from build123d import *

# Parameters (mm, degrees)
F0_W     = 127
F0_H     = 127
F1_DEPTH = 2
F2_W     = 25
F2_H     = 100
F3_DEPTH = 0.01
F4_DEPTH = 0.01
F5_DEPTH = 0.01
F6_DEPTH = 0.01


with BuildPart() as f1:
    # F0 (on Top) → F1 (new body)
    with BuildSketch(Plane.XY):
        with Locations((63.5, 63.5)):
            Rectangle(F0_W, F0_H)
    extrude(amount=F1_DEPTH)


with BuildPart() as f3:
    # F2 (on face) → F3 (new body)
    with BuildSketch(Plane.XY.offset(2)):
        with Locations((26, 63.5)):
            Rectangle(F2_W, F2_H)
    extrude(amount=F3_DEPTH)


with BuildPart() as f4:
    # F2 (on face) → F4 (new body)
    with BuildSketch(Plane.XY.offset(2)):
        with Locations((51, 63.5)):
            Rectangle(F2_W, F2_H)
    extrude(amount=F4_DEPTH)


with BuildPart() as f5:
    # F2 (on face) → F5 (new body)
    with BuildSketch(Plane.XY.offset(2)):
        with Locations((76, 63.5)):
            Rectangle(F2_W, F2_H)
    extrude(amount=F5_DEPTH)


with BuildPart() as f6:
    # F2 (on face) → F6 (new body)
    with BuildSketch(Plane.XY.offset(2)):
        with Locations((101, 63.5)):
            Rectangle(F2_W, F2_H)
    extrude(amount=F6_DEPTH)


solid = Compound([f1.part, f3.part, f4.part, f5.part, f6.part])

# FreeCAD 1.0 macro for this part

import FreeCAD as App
import Part
import Sketcher
from FreeCAD import Vector
Q = App.Units.Quantity

doc = App.newDocument("Part")
body = doc.addObject("PartDesign::Body", "Body")

# Sketch on XY plane
sketch1 = body.newObject("Sketcher::SketchObject", "Sketch")
sketch1.AttachmentSupport = (doc.getObject("XY_Plane"), [""])
sketch1.MapMode = "FlatFace"
sketch1.addGeometry(Part.LineSegment(Vector(0, 127, 0), Vector(0, 0, 0)), False)
sketch1.addGeometry(Part.LineSegment(Vector(0, 0, 0), Vector(127, 0, 0)), False)
sketch1.addGeometry(Part.LineSegment(Vector(127, 0, 0), Vector(127, 127, 0)), False)
sketch1.addGeometry(Part.LineSegment(Vector(127, 127, 0), Vector(0, 127, 0)), False)
sketch1.addConstraint(Sketcher.Constraint("Coincident", 0, 2, 1, 1))
sketch1.addConstraint(Sketcher.Constraint("Coincident", 1, 2, 2, 1))
sketch1.addConstraint(Sketcher.Constraint("Coincident", 2, 2, 3, 1))
sketch1.addConstraint(Sketcher.Constraint("Coincident", 3, 2, 0, 1))
sketch1.addConstraint(Sketcher.Constraint("Vertical", 0))
sketch1.addConstraint(Sketcher.Constraint("Horizontal", 1))
sketch1.addConstraint(Sketcher.Constraint("Vertical", 2))
sketch1.addConstraint(Sketcher.Constraint("Horizontal", 3))
sketch1.addConstraint(Sketcher.Constraint("Coincident", 0, 2, -1, 1))
sketch1.addConstraint(Sketcher.Constraint("Equal", 3, 0))
sketch1.addConstraint(Sketcher.Constraint("DistanceX", 1, 1, 1, 2, Q("127 mm")))
pad1 = body.newObject("PartDesign::Pad", "Pad")
pad1.Profile = sketch1
pad1.Length = 2
body2 = doc.addObject("PartDesign::Body", "Body001")

# Sketch on XY plane
sketch2 = body2.newObject("Sketcher::SketchObject", "Sketch001")
sketch2.AttachmentSupport = (doc.getObject("XY_Plane001"), [""])
sketch2.MapMode = "FlatFace"
sketch2.AttachmentOffset = App.Placement(Vector(0, 0, 2), App.Rotation())
sketch2.addGeometry(Part.LineSegment(Vector(13.5, 113.5, 0), Vector(13.5, 13.5, 0)), False)
sketch2.addGeometry(Part.LineSegment(Vector(13.5, 13.5, 0), Vector(38.5, 13.5, 0)), False)
sketch2.addGeometry(Part.LineSegment(Vector(38.5, 13.5, 0), Vector(38.5, 113.5, 0)), False)
sketch2.addGeometry(Part.LineSegment(Vector(38.5, 113.5, 0), Vector(13.5, 113.5, 0)), False)
sketch2.addConstraint(Sketcher.Constraint("Coincident", 0, 2, 1, 1))
sketch2.addConstraint(Sketcher.Constraint("Coincident", 1, 2, 2, 1))
sketch2.addConstraint(Sketcher.Constraint("Coincident", 2, 2, 3, 1))
sketch2.addConstraint(Sketcher.Constraint("Coincident", 3, 2, 0, 1))
sketch2.addConstraint(Sketcher.Constraint("Vertical", 0))
sketch2.addConstraint(Sketcher.Constraint("Horizontal", 1))
sketch2.addConstraint(Sketcher.Constraint("Vertical", 2))
sketch2.addConstraint(Sketcher.Constraint("Horizontal", 3))
sketch2.addConstraint(Sketcher.Constraint("DistanceX", 1, 1, 1, 2, Q("25 mm")))
sketch2.addConstraint(Sketcher.Constraint("DistanceY", 0, 2, 0, 1, Q("100 mm")))
sketch2.addConstraint(Sketcher.Constraint("DistanceX", -1, 1, 0, 2, Q("13.5 mm")))
sketch2.addConstraint(Sketcher.Constraint("DistanceY", -1, 1, 0, 2, Q("13.5 mm")))
pad2 = body2.newObject("PartDesign::Pad", "Pad001")
pad2.Profile = sketch2
pad2.Length = 0.01
body3 = doc.addObject("PartDesign::Body", "Body002")

# Sketch on XY plane
sketch3 = body3.newObject("Sketcher::SketchObject", "Sketch002")
sketch3.AttachmentSupport = (doc.getObject("XY_Plane002"), [""])
sketch3.MapMode = "FlatFace"
sketch3.AttachmentOffset = App.Placement(Vector(0, 0, 2), App.Rotation())
sketch3.addGeometry(Part.LineSegment(Vector(38.5, 113.5, 0), Vector(38.5, 13.5, 0)), False)
sketch3.addGeometry(Part.LineSegment(Vector(38.5, 13.5, 0), Vector(63.5, 13.5, 0)), False)
sketch3.addGeometry(Part.LineSegment(Vector(63.5, 13.5, 0), Vector(63.5, 113.5, 0)), False)
sketch3.addGeometry(Part.LineSegment(Vector(63.5, 113.5, 0), Vector(38.5, 113.5, 0)), False)
sketch3.addConstraint(Sketcher.Constraint("Coincident", 0, 2, 1, 1))
sketch3.addConstraint(Sketcher.Constraint("Coincident", 1, 2, 2, 1))
sketch3.addConstraint(Sketcher.Constraint("Coincident", 2, 2, 3, 1))
sketch3.addConstraint(Sketcher.Constraint("Coincident", 3, 2, 0, 1))
sketch3.addConstraint(Sketcher.Constraint("Vertical", 0))
sketch3.addConstraint(Sketcher.Constraint("Horizontal", 1))
sketch3.addConstraint(Sketcher.Constraint("Vertical", 2))
sketch3.addConstraint(Sketcher.Constraint("Horizontal", 3))
sketch3.addConstraint(Sketcher.Constraint("DistanceX", 1, 1, 1, 2, Q("25 mm")))
sketch3.addConstraint(Sketcher.Constraint("DistanceY", 0, 2, 0, 1, Q("100 mm")))
sketch3.addConstraint(Sketcher.Constraint("DistanceX", -1, 1, 0, 2, Q("38.5 mm")))
sketch3.addConstraint(Sketcher.Constraint("DistanceY", -1, 1, 0, 2, Q("13.5 mm")))
pad3 = body3.newObject("PartDesign::Pad", "Pad002")
pad3.Profile = sketch3
pad3.Length = 0.01
body4 = doc.addObject("PartDesign::Body", "Body003")

# Sketch on XY plane
sketch4 = body4.newObject("Sketcher::SketchObject", "Sketch003")
sketch4.AttachmentSupport = (doc.getObject("XY_Plane003"), [""])
sketch4.MapMode = "FlatFace"
sketch4.AttachmentOffset = App.Placement(Vector(0, 0, 2), App.Rotation())
sketch4.addGeometry(Part.LineSegment(Vector(63.5, 113.5, 0), Vector(63.5, 13.5, 0)), False)
sketch4.addGeometry(Part.LineSegment(Vector(63.5, 13.5, 0), Vector(88.5, 13.5, 0)), False)
sketch4.addGeometry(Part.LineSegment(Vector(88.5, 13.5, 0), Vector(88.5, 113.5, 0)), False)
sketch4.addGeometry(Part.LineSegment(Vector(88.5, 113.5, 0), Vector(63.5, 113.5, 0)), False)
sketch4.addConstraint(Sketcher.Constraint("Coincident", 0, 2, 1, 1))
sketch4.addConstraint(Sketcher.Constraint("Coincident", 1, 2, 2, 1))
sketch4.addConstraint(Sketcher.Constraint("Coincident", 2, 2, 3, 1))
sketch4.addConstraint(Sketcher.Constraint("Coincident", 3, 2, 0, 1))
sketch4.addConstraint(Sketcher.Constraint("Vertical", 0))
sketch4.addConstraint(Sketcher.Constraint("Horizontal", 1))
sketch4.addConstraint(Sketcher.Constraint("Vertical", 2))
sketch4.addConstraint(Sketcher.Constraint("Horizontal", 3))
sketch4.addConstraint(Sketcher.Constraint("DistanceX", 1, 1, 1, 2, Q("25 mm")))
sketch4.addConstraint(Sketcher.Constraint("DistanceY", 0, 2, 0, 1, Q("100 mm")))
sketch4.addConstraint(Sketcher.Constraint("DistanceX", -1, 1, 0, 2, Q("63.5 mm")))
sketch4.addConstraint(Sketcher.Constraint("DistanceY", -1, 1, 0, 2, Q("13.5 mm")))
pad4 = body4.newObject("PartDesign::Pad", "Pad003")
pad4.Profile = sketch4
pad4.Length = 0.01
body5 = doc.addObject("PartDesign::Body", "Body004")

# Sketch on XY plane
sketch5 = body5.newObject("Sketcher::SketchObject", "Sketch004")
sketch5.AttachmentSupport = (doc.getObject("XY_Plane004"), [""])
sketch5.MapMode = "FlatFace"
sketch5.AttachmentOffset = App.Placement(Vector(0, 0, 2), App.Rotation())
sketch5.addGeometry(Part.LineSegment(Vector(88.5, 113.5, 0), Vector(88.5, 13.5, 0)), False)
sketch5.addGeometry(Part.LineSegment(Vector(88.5, 13.5, 0), Vector(113.5, 13.5, 0)), False)
sketch5.addGeometry(Part.LineSegment(Vector(113.5, 13.5, 0), Vector(113.5, 113.5, 0)), False)
sketch5.addGeometry(Part.LineSegment(Vector(113.5, 113.5, 0), Vector(88.5, 113.5, 0)), False)
sketch5.addConstraint(Sketcher.Constraint("Coincident", 0, 2, 1, 1))
sketch5.addConstraint(Sketcher.Constraint("Coincident", 1, 2, 2, 1))
sketch5.addConstraint(Sketcher.Constraint("Coincident", 2, 2, 3, 1))
sketch5.addConstraint(Sketcher.Constraint("Coincident", 3, 2, 0, 1))
sketch5.addConstraint(Sketcher.Constraint("Vertical", 0))
sketch5.addConstraint(Sketcher.Constraint("Horizontal", 1))
sketch5.addConstraint(Sketcher.Constraint("Vertical", 2))
sketch5.addConstraint(Sketcher.Constraint("Horizontal", 3))
sketch5.addConstraint(Sketcher.Constraint("DistanceX", 1, 1, 1, 2, Q("25 mm")))
sketch5.addConstraint(Sketcher.Constraint("DistanceY", 0, 2, 0, 1, Q("100 mm")))
sketch5.addConstraint(Sketcher.Constraint("DistanceX", -1, 1, 0, 2, Q("88.5 mm")))
sketch5.addConstraint(Sketcher.Constraint("DistanceY", -1, 1, 0, 2, Q("13.5 mm")))
pad5 = body5.newObject("PartDesign::Pad", "Pad004")
pad5.Profile = sketch5
pad5.Length = 0.01

doc.recompute()
